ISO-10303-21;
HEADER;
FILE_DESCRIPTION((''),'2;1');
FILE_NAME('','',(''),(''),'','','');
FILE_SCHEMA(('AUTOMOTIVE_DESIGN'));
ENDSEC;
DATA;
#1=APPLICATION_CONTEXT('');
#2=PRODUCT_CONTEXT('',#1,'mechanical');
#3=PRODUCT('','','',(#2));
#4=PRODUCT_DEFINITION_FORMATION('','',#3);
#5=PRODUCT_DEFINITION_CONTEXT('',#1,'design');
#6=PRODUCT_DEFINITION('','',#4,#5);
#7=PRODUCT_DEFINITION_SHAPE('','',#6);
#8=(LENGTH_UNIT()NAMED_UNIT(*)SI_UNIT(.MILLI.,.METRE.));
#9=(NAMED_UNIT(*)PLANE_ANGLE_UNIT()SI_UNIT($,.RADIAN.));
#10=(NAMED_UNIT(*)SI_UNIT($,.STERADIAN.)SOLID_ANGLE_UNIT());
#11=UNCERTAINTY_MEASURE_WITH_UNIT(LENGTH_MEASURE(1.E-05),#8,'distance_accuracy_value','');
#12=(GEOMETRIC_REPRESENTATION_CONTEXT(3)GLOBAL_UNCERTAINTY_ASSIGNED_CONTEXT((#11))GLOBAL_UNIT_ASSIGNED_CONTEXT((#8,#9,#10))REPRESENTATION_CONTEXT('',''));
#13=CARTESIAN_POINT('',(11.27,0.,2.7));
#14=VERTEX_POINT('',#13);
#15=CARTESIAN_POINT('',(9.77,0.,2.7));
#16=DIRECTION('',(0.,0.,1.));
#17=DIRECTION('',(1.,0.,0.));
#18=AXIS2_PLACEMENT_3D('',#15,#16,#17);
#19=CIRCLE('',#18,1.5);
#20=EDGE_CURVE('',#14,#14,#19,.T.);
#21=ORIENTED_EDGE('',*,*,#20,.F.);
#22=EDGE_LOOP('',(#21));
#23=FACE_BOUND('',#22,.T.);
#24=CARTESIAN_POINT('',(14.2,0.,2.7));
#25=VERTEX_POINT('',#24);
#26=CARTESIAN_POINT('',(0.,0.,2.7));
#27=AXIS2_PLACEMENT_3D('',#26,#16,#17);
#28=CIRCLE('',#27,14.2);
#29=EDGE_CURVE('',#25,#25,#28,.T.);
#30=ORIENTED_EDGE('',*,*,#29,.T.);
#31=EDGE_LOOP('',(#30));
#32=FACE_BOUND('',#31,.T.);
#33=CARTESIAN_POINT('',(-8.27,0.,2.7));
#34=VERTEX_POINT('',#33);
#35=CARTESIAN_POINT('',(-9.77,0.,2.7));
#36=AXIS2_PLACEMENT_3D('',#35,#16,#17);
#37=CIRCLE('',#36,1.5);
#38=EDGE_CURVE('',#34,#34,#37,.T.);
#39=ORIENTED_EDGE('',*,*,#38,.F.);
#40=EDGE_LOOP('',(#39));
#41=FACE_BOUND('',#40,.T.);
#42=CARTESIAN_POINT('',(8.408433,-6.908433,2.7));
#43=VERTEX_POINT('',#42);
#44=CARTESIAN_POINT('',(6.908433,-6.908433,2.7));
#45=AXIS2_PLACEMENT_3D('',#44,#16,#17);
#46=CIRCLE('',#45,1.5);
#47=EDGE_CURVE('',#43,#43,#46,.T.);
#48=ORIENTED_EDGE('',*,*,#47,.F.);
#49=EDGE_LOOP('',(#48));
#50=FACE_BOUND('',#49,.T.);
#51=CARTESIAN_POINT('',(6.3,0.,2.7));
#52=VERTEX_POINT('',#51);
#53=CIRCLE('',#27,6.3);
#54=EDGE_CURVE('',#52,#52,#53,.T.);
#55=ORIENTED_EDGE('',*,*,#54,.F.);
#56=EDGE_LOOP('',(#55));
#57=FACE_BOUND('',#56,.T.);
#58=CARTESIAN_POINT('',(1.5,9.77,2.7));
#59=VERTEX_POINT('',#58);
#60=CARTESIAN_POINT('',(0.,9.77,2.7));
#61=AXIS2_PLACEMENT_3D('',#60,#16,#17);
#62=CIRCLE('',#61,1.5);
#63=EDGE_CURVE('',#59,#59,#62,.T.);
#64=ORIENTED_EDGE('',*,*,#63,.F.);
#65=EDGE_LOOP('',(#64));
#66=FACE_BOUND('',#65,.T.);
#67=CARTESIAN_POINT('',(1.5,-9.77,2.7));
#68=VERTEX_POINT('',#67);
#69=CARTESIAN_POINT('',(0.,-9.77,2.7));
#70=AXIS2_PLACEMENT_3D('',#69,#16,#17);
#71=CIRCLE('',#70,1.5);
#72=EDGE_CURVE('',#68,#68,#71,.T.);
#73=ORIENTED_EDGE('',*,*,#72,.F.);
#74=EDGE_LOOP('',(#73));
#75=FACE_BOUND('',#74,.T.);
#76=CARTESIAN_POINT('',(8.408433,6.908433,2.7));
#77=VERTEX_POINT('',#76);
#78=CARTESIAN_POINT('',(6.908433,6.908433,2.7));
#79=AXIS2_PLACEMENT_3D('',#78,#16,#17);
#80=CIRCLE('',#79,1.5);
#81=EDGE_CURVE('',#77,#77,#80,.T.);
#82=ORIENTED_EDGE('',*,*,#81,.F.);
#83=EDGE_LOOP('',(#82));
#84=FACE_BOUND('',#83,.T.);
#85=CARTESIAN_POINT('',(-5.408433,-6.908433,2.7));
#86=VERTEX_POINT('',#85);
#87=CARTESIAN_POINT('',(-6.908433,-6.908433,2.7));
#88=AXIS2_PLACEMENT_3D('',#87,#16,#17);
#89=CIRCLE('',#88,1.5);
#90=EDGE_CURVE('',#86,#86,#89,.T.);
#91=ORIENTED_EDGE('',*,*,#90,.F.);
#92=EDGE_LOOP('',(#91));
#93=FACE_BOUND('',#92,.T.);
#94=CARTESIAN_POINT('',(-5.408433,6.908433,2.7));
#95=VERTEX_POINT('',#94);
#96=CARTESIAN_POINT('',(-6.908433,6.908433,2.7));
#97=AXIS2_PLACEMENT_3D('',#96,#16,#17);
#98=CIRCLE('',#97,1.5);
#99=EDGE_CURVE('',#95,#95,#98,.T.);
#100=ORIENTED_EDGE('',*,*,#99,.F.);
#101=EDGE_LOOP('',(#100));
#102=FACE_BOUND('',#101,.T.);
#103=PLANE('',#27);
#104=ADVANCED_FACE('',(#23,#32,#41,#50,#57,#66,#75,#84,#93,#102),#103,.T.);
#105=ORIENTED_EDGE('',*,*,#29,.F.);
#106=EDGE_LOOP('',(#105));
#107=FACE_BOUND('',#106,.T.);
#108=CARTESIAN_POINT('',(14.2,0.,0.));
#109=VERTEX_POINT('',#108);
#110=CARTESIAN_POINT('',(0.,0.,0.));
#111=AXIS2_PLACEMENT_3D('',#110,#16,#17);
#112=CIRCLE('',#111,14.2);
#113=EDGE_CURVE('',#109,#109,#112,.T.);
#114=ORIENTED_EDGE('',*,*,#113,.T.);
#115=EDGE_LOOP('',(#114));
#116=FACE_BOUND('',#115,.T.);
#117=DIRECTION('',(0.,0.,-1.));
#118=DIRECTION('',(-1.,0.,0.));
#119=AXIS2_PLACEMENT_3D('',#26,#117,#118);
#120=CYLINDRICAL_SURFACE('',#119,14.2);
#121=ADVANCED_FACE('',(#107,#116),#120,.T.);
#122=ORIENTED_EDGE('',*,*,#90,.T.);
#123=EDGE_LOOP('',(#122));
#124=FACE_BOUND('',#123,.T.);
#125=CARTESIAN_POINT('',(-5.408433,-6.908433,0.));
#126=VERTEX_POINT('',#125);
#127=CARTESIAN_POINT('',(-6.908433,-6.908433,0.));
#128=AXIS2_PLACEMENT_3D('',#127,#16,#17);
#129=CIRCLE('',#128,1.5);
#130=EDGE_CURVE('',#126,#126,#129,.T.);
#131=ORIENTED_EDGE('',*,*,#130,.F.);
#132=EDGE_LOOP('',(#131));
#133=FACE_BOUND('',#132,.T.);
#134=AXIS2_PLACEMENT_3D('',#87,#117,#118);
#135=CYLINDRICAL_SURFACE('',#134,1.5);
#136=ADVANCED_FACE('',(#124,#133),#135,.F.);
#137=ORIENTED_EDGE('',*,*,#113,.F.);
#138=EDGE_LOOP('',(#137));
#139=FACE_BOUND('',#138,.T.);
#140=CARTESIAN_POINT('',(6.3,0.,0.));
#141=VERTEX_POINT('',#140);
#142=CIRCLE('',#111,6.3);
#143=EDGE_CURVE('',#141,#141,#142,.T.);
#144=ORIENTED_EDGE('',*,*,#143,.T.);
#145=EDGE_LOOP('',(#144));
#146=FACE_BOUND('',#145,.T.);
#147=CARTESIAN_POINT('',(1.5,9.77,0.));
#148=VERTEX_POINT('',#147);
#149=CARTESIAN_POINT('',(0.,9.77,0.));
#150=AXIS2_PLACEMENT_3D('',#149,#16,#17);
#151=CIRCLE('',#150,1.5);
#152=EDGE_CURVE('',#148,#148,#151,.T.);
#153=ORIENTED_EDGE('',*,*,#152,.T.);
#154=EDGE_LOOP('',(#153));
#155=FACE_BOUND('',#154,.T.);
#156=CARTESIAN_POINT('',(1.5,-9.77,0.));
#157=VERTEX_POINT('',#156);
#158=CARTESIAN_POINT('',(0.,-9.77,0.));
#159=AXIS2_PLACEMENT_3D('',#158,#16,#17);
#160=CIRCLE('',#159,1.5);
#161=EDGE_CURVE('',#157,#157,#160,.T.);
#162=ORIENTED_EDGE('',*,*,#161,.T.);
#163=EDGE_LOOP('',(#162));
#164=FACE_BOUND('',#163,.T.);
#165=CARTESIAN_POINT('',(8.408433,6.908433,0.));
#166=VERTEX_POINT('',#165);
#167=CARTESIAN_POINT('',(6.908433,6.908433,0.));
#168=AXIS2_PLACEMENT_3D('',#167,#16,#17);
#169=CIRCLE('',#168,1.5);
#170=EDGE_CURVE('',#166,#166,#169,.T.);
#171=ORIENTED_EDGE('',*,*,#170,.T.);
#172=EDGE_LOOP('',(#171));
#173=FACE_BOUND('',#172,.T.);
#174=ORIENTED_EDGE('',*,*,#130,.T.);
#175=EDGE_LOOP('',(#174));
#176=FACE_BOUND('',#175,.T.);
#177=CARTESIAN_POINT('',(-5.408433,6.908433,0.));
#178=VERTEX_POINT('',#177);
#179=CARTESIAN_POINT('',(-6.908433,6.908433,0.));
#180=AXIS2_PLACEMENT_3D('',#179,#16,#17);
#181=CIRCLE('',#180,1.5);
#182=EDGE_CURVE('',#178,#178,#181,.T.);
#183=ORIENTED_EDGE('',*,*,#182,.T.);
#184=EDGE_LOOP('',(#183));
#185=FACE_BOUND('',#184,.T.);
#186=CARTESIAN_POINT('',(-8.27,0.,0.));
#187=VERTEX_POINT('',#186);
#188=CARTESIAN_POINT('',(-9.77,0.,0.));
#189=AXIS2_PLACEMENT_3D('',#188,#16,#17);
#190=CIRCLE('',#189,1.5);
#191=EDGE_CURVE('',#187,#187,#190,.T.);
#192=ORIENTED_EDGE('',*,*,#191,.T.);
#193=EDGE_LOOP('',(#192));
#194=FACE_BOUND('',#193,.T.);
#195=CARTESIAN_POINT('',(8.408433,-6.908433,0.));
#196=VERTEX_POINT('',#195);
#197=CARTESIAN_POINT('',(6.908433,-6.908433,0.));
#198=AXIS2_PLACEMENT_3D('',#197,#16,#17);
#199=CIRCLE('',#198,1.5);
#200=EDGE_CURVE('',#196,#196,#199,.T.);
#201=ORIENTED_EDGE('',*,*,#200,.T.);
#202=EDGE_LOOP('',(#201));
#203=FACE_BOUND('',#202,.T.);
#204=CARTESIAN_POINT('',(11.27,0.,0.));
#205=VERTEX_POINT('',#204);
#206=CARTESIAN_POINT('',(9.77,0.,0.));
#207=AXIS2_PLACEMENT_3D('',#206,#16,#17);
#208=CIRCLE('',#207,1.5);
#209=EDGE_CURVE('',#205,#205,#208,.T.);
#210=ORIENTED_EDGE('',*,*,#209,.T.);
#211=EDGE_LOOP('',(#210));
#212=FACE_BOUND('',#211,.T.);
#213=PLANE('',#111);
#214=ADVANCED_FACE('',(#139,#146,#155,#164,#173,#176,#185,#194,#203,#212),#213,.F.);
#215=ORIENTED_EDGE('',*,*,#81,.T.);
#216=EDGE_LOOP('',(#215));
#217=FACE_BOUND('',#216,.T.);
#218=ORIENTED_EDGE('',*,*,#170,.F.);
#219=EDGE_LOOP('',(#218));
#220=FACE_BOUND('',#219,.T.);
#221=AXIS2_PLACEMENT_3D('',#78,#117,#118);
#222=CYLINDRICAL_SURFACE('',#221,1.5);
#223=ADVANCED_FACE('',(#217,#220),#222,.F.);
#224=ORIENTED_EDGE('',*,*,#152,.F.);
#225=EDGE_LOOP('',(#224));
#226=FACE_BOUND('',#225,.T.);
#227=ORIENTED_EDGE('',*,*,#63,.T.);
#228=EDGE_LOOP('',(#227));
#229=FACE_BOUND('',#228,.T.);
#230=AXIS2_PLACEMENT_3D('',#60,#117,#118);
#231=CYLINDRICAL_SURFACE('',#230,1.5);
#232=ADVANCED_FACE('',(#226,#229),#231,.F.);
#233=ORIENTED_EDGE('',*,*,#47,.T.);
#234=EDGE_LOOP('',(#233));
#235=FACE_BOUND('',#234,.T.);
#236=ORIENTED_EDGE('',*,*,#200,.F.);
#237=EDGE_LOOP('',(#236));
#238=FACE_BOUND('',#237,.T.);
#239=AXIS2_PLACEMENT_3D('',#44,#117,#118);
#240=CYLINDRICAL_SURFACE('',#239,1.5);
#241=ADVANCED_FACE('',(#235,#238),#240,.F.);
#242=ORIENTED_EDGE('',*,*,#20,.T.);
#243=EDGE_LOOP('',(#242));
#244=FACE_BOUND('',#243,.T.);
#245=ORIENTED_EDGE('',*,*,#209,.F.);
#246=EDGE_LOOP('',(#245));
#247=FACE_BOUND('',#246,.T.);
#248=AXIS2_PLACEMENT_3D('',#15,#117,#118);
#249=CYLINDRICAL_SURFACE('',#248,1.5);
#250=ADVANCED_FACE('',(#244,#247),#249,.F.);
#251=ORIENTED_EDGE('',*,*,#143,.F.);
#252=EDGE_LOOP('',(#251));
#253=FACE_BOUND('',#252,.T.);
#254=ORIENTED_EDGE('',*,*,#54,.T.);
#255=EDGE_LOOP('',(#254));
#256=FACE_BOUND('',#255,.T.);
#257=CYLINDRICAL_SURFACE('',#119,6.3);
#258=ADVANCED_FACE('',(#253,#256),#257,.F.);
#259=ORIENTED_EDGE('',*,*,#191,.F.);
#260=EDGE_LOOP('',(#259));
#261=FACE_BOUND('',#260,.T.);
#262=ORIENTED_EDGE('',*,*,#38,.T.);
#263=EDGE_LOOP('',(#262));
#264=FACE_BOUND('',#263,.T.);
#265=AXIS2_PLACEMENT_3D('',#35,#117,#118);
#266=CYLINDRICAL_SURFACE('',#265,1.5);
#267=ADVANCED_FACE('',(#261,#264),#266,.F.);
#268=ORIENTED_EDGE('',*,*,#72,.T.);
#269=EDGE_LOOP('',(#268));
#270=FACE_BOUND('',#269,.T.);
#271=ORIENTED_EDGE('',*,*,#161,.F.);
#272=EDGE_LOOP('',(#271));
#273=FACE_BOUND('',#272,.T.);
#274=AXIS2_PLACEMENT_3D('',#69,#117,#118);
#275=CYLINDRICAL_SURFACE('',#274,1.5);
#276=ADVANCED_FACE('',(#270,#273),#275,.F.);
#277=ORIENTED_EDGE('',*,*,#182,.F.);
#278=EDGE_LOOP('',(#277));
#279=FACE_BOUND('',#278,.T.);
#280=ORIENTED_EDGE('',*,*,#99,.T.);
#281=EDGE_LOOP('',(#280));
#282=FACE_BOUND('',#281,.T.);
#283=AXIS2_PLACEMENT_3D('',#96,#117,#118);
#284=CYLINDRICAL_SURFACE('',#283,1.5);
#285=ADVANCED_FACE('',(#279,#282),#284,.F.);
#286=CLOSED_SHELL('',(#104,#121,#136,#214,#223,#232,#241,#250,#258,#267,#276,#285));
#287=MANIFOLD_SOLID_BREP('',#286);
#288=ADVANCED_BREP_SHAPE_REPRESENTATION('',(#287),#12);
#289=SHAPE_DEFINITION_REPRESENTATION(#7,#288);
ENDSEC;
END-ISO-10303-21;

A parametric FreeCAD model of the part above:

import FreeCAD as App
import Part
import Sketcher
Q = App.Units.Quantity

doc = App.newDocument("Part")
params = doc.addObject("Spreadsheet::Sheet", "Params")
for row, (alias, value) in enumerate([
    ("sketch1_diameter", "3 mm"),
    ("sketch1_diameter2", "28.4 mm"),
    ("sketch1_diameter3", "12.6 mm"),
    ("pad1_length", "2.7 mm"),
], start=1):
    params.set(f"A{row}", alias)
    params.set(f"B{row}", "=" + value)
    params.setAlias(f"B{row}", alias)

body = doc.addObject("PartDesign::Body", "Body")

# Sketch on XY plane
sketch1 = body.newObject("Sketcher::SketchObject", "Sketch")
sketch1.AttachmentSupport = (doc.getObject("XY_Plane"), [""])
sketch1.MapMode = "FlatFace"
sketch1.addGeometry([
    Part.Circle(App.Vector(0, 0, 0), App.Vector(0, 0, 1), 14.2),  # 0
    Part.Circle(App.Vector(-6.908433, -6.908433, 0), App.Vector(0, 0, 1), 1.5),  # 1
    Part.Circle(App.Vector(0, -9.77, 0), App.Vector(0, 0, 1), 1.5),  # 2
    Part.Circle(App.Vector(6.908433, -6.908433, 0), App.Vector(0, 0, 1), 1.5),  # 3
    Part.Circle(App.Vector(-9.77, 0, 0), App.Vector(0, 0, 1), 1.5),  # 4
    Part.Circle(App.Vector(-6.908433, 6.908433, 0), App.Vector(0, 0, 1), 1.5),  # 5
    Part.Circle(App.Vector(0, 0, 0), App.Vector(0, 0, 1), 6.3),  # 6
    Part.Circle(App.Vector(9.77, 0, 0), App.Vector(0, 0, 1), 1.5),  # 7
    Part.Circle(App.Vector(0, 9.77, 0), App.Vector(0, 0, 1), 1.5),  # 8
    Part.Circle(App.Vector(6.908433, 6.908433, 0), App.Vector(0, 0, 1), 1.5),  # 9
], False)
sketch1.addConstraint([
    Sketcher.Constraint("Coincident", 0, 3, -1, 1),
    Sketcher.Constraint("Coincident", 6, 3, -1, 1),
    Sketcher.Constraint("Equal", 1, 2),
    Sketcher.Constraint("Equal", 2, 3),
    Sketcher.Constraint("Equal", 3, 4),
    Sketcher.Constraint("Equal", 4, 5),
    Sketcher.Constraint("Equal", 5, 7),
    Sketcher.Constraint("Equal", 7, 8),
    Sketcher.Constraint("Equal", 8, 9),
    Sketcher.Constraint("Symmetric", 3, 3, 5, 3, -1, 1),
    Sketcher.Constraint("Symmetric", 4, 3, 7, 3, -1, 1),
    Sketcher.Constraint("Symmetric", 2, 3, 8, 3, -1, 1),
    Sketcher.Constraint("Symmetric", 1, 3, 9, 3, -1, 1),
    Sketcher.Constraint("Symmetric", 1, 3, 3, 3, -2),
    Sketcher.Constraint("PointOnObject", 2, 3, -2),
    Sketcher.Constraint("PointOnObject", 4, 3, -1),
    Sketcher.Constraint("Diameter", 1, Q("3 mm")),
    Sketcher.Constraint("Diameter", 0, Q("28.4 mm")),
    Sketcher.Constraint("Diameter", 6, Q("12.6 mm")),
    Sketcher.Constraint("DistanceY", 2, 3, -1, 1, Q("9.77 mm")),
    Sketcher.Constraint("DistanceX", 4, 3, -1, 1, Q("9.77 mm")),
    Sketcher.Constraint("DistanceX", 1, 3, -1, 1, Q("6.908433 mm")),
    Sketcher.Constraint("DistanceY", 1, 3, -1, 1, Q("6.908433 mm")),
])
sketch1.setExpression("Constraints[16]", "Params.sketch1_diameter")
sketch1.setExpression("Constraints[17]", "Params.sketch1_diameter2")
sketch1.setExpression("Constraints[18]", "Params.sketch1_diameter3")
pad1 = body.newObject("PartDesign::Pad", "Pad")
pad1.Profile = sketch1
pad1.setExpression("Length", "Params.pad1_length")

doc.recompute()
